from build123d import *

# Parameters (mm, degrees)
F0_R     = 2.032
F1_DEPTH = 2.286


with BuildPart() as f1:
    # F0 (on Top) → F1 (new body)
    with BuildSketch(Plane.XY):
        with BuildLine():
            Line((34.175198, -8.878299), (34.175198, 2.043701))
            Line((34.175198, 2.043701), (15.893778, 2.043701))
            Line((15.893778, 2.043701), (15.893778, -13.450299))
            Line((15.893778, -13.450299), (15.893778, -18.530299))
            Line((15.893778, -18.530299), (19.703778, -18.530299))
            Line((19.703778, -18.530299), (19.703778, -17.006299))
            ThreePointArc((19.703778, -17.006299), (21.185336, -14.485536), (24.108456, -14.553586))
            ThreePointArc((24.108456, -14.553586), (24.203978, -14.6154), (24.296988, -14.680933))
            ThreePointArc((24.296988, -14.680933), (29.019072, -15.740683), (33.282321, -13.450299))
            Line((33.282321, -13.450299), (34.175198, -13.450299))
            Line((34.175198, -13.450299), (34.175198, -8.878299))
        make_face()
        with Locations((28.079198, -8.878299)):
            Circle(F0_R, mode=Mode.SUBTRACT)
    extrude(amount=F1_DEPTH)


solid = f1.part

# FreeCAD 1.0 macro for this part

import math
import FreeCAD as App
import Part
import Sketcher
from FreeCAD import Vector
Q = App.Units.Quantity

doc = App.newDocument("Part")
body = doc.addObject("PartDesign::Body", "Body")

# Sketch on XY plane
sketch1 = doc.addObject("Sketcher::SketchObject", "Sketch")
body.addObject(sketch1)
sketch1.AttachmentSupport = (doc.XY_Plane, [""])
sketch1.MapMode = "FlatFace"
sketch1.addGeometry([
    Part.LineSegment(Vector(34.18, 2.04, 0), Vector(15.89, 2.04, 0)),  # 0
    Part.LineSegment(Vector(15.89, 2.04, 0), Vector(15.89, -18.53, 0)),  # 1
    Part.LineSegment(Vector(15.89, -18.53, 0), Vector(19.7, -18.53, 0)),  # 2
    Part.LineSegment(Vector(19.7, -18.53, 0), Vector(19.7, -17.01, 0)),  # 3
    Part.ArcOfCircle(Part.Circle(Vector(22.59, -17.01, 0), Vector(0, 0, 1), 2.89), math.radians(58), math.radians(180)),  # 4
    Part.ArcOfCircle(Part.Circle(Vector(22.59, -17.01, 0), Vector(0, 0, 1), 2.88), math.radians(53.7), math.radians(58.22)),  # 5
    Part.ArcOfCircle(Part.Circle(Vector(28.08, -8.88, 0), Vector(0, 0, 1), 6.93), math.radians(-123), math.radians(-41)),  # 6
    Part.LineSegment(Vector(33.28, -13.45, 0), Vector(34.18, -13.45, 0)),  # 7
    Part.LineSegment(Vector(34.18, -13.45, 0), Vector(34.18, 2.04, 0)),  # 8
    Part.Circle(Vector(28.08, -8.88, 0), Vector(0, 0, 1), 2.03),  # 9
], False)
sketch1.addConstraint([
    Sketcher.Constraint("Coincident", 0, 2, 1, 1),
    Sketcher.Constraint("Coincident", 1, 2, 2, 1),
    Sketcher.Constraint("Coincident", 2, 2, 3, 1),
    Sketcher.Constraint("Tangent", 3, 2, 4, 2),
    Sketcher.Constraint("Coincident", 4, 1, 5, 2),
    Sketcher.Constraint("Coincident", 5, 1, 6, 1),
    Sketcher.Constraint("Coincident", 6, 2, 7, 1),
    Sketcher.Constraint("Coincident", 7, 2, 8, 1),
    Sketcher.Constraint("Coincident", 8, 2, 0, 1),
    Sketcher.Constraint("Horizontal", 0),
    Sketcher.Constraint("Vertical", 1),
    Sketcher.Constraint("Horizontal", 2),
    Sketcher.Constraint("Vertical", 3),
    Sketcher.Constraint("Horizontal", 7),
    Sketcher.Constraint("Vertical", 8),
    Sketcher.Constraint("Coincident", 9, 3, 6, 3),
    Sketcher.Constraint("Diameter", 9, Q("0.16 in")),
    Sketcher.Constraint("DistanceX", 2, 1, 2, 2, Q("0.15 in")),
    Sketcher.Constraint("DistanceY", 1, 2, 1, 1, Q("0.81 in")),
    Sketcher.Constraint("DistanceY", 3, 1, 3, 2, Q("0.06 in")),
    Sketcher.Constraint("DistanceY", 8, 1, 8, 2, Q("0.61 in")),
    Sketcher.Constraint("DistanceY", 4, 3, 6, 3, Q("0.32 in")),
    Sketcher.Constraint("DistanceX", 6, 3, 7, 2, Q("0.24 in")),
    Sketcher.Constraint("Radius", 5, Q("2.884528 mm")),
    Sketcher.Constraint("Radius", 4, Q("2.885227 mm")),
    Sketcher.Constraint("Radius", 6, Q("6.926447 mm")),
    Sketcher.Constraint("DistanceX", 0, 2, 0, 1, Q("18.28142 mm")),
    Sketcher.Constraint("DistanceY", 4, 3, -1, 1, Q("17.006299 mm")),
    Sketcher.Constraint("DistanceX", -1, 1, 6, 3, Q("28.079198 mm")),
    Sketcher.Constraint("DistanceX", 5, 3, 6, 3, Q("5.489801 mm")),
    Sketcher.Constraint("DistanceX", 5, 3, 4, 1, Q("1.519059 mm")),
])
pad1 = doc.addObject("PartDesign::Pad", "Pad")
body.addObject(pad1)
pad1.Profile = sketch1
pad1.Length = Q("0.09 in")

doc.recompute()
